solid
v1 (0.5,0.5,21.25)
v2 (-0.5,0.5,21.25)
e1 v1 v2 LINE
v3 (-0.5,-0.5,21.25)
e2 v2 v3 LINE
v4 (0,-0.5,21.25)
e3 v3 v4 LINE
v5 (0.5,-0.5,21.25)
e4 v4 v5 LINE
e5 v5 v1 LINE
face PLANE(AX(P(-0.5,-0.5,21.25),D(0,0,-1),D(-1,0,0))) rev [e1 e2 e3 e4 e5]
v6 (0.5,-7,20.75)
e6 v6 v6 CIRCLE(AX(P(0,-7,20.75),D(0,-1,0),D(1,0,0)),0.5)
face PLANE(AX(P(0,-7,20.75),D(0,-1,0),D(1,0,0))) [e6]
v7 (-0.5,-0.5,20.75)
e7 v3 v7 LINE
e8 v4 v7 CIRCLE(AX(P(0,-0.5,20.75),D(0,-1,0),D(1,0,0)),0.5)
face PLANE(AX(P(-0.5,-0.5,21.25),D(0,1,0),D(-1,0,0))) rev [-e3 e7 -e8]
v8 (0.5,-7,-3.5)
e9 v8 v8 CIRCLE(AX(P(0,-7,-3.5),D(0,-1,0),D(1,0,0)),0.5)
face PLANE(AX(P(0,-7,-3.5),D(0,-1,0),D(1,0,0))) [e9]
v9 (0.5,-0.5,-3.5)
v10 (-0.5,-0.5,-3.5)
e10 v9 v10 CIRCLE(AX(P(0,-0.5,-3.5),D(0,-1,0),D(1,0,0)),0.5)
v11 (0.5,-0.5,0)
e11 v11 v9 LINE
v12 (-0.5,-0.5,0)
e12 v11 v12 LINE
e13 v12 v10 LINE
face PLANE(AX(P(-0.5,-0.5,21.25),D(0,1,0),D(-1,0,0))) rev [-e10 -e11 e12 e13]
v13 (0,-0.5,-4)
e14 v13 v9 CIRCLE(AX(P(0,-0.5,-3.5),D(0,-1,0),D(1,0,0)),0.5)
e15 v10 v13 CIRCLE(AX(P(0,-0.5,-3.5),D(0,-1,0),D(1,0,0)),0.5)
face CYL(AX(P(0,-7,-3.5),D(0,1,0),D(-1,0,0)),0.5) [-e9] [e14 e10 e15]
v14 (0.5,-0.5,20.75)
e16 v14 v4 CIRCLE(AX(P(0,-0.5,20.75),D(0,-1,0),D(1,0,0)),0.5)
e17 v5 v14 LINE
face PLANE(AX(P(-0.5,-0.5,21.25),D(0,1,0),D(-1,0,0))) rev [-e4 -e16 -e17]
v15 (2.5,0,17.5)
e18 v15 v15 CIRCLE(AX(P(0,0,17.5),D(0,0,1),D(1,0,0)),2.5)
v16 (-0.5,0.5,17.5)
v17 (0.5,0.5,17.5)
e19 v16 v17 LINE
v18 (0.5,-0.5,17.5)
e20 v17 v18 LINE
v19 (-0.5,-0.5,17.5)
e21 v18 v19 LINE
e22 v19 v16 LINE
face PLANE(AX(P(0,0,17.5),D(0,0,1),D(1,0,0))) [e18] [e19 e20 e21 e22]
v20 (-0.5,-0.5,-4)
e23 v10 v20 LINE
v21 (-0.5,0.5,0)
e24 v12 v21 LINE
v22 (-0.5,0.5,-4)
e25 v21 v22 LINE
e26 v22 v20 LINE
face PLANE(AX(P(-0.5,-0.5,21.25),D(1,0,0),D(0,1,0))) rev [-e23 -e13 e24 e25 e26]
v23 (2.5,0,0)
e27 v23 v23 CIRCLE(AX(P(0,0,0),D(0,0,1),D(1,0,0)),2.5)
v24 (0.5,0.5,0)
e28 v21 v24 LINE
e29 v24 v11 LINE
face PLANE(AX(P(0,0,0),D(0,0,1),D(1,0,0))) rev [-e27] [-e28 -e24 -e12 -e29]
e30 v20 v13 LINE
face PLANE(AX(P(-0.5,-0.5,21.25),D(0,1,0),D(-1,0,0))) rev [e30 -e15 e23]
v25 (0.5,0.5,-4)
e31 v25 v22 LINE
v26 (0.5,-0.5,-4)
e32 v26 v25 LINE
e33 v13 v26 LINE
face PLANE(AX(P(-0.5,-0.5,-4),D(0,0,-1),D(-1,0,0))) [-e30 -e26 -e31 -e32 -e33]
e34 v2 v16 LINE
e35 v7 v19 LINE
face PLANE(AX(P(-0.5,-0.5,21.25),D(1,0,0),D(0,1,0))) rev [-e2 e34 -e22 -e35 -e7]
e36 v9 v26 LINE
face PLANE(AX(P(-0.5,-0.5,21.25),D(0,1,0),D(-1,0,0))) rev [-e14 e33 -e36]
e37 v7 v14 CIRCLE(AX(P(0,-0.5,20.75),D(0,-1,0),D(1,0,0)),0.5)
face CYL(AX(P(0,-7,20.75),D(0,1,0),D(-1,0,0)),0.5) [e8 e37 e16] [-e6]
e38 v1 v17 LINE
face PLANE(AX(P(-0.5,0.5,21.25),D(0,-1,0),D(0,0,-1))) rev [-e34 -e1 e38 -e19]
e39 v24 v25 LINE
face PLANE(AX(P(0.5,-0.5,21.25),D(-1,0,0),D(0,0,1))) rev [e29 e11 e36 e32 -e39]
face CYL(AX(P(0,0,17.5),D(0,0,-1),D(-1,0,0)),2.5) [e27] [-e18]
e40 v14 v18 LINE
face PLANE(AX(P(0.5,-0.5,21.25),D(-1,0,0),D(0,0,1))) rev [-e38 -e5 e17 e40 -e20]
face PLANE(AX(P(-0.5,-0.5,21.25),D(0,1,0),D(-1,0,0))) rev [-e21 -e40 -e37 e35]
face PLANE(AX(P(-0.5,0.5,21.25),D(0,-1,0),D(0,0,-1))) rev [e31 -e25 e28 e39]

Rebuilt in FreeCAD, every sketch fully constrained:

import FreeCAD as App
import Part
import Sketcher
from FreeCAD import Vector

doc = App.newDocument("Part")
params = doc.addObject("Spreadsheet::Sheet", "Params")
for row, (alias, value) in enumerate([
    ("sketch1_diameter", "5 mm"),
    ("pad1_length", "17.5 mm"),
    ("sketch2_width", "1 mm"),
    ("pad2_length", "3.75 mm"),
    ("pad2_length2", "21.5 mm"),
    ("sketch3_diameter", "1 mm"),
    ("pad3_length", "6.5 mm"),
], start=1):
    params.set(f"A{row}", alias)
    params.set(f"B{row}", "=" + value)
    params.setAlias(f"B{row}", alias)

body = doc.addObject("PartDesign::Body", "Body")

sketch1 = body.newObject("Sketcher::SketchObject", "Sketch")
sketch1.AttachmentSupport = (doc.getObject("XY_Plane"), [""])
sketch1.MapMode = "FlatFace"
sketch1.addGeometry(Part.Circle(Vector(0, 0, 0), Vector(0, 0, 1), 2.5), False)
sketch1.addConstraint(Sketcher.Constraint("Coincident", 0, 3, -1, 1))
sketch1.addConstraint(Sketcher.Constraint("Diameter", 0, 5.0))
sketch1.setExpression("Constraints[1]", "Params.sketch1_diameter")
pad1 = body.newObject("PartDesign::Pad", "Pad")
pad1.Profile = sketch1
pad1.setExpression("Length", "Params.pad1_length")

sketch2 = body.newObject("Sketcher::SketchObject", "Sketch001")
sketch2.AttachmentSupport = (doc.getObject("XY_Plane"), [""])
sketch2.MapMode = "FlatFace"
sketch2.AttachmentOffset = App.Placement(Vector(0, 0, 17.5), App.Rotation())
sketch2.addGeometry(Part.LineSegment(Vector(-0.5, 0.5, 0), Vector(-0.5, -0.5, 0)), False)
sketch2.addGeometry(Part.LineSegment(Vector(-0.5, -0.5, 0), Vector(0.5, -0.5, 0)), False)
sketch2.addGeometry(Part.LineSegment(Vector(0.5, -0.5, 0), Vector(0.5, 0.5, 0)), False)
sketch2.addGeometry(Part.LineSegment(Vector(0.5, 0.5, 0), Vector(-0.5, 0.5, 0)), False)
sketch2.addConstraint(Sketcher.Constraint("Coincident", 0, 2, 1, 1))
sketch2.addConstraint(Sketcher.Constraint("Coincident", 1, 2, 2, 1))
sketch2.addConstraint(Sketcher.Constraint("Coincident", 2, 2, 3, 1))
sketch2.addConstraint(Sketcher.Constraint("Coincident", 3, 2, 0, 1))
sketch2.addConstraint(Sketcher.Constraint("Vertical", 0))
sketch2.addConstraint(Sketcher.Constraint("Horizontal", 1))
sketch2.addConstraint(Sketcher.Constraint("Vertical", 2))
sketch2.addConstraint(Sketcher.Constraint("Horizontal", 3))
sketch2.addConstraint(Sketcher.Constraint("Symmetric", 0, 2, 2, 2, -1, 1))
sketch2.addConstraint(Sketcher.Constraint("Equal", 3, 0))
sketch2.addConstraint(Sketcher.Constraint("DistanceX", 1, 1, 1, 2, 1.0))
sketch2.setExpression("Constraints[10]", "Params.sketch2_width")
pad2 = body.newObject("PartDesign::Pad", "Pad001")
pad2.Profile = sketch2
pad2.Type = "TwoLengths"
pad2.setExpression("Length", "Params.pad2_length")
pad2.setExpression("Length2", "Params.pad2_length2")

sketch3 = body.newObject("Sketcher::SketchObject", "Sketch002")
sketch3.AttachmentSupport = (doc.getObject("XZ_Plane"), [""])
sketch3.MapMode = "FlatFace"
sketch3.AttachmentOffset = App.Placement(Vector(0, 0, 0.5), App.Rotation())
sketch3.addGeometry(Part.Circle(Vector(0, 20.8, 0), Vector(0, 0, 1), 0.5), False)
sketch3.addGeometry(Part.Circle(Vector(0, -3.5, 0), Vector(0, 0, 1), 0.5), False)
sketch3.addConstraint(Sketcher.Constraint("Equal", 0, 1))
sketch3.addConstraint(Sketcher.Constraint("PointOnObject", 0, 3, -2))
sketch3.addConstraint(Sketcher.Constraint("PointOnObject", 1, 3, -2))
sketch3.addConstraint(Sketcher.Constraint("Diameter", 0, 1.0))
sketch3.addConstraint(Sketcher.Constraint("DistanceY", 1, 3, -1, 1, 3.5))
sketch3.addConstraint(Sketcher.Constraint("DistanceY", -1, 1, 0, 3, 20.75))
sketch3.setExpression("Constraints[3]", "Params.sketch3_diameter")
pad3 = body.newObject("PartDesign::Pad", "Pad002")
pad3.Profile = sketch3
pad3.setExpression("Length", "Params.pad3_length")

doc.recompute()
